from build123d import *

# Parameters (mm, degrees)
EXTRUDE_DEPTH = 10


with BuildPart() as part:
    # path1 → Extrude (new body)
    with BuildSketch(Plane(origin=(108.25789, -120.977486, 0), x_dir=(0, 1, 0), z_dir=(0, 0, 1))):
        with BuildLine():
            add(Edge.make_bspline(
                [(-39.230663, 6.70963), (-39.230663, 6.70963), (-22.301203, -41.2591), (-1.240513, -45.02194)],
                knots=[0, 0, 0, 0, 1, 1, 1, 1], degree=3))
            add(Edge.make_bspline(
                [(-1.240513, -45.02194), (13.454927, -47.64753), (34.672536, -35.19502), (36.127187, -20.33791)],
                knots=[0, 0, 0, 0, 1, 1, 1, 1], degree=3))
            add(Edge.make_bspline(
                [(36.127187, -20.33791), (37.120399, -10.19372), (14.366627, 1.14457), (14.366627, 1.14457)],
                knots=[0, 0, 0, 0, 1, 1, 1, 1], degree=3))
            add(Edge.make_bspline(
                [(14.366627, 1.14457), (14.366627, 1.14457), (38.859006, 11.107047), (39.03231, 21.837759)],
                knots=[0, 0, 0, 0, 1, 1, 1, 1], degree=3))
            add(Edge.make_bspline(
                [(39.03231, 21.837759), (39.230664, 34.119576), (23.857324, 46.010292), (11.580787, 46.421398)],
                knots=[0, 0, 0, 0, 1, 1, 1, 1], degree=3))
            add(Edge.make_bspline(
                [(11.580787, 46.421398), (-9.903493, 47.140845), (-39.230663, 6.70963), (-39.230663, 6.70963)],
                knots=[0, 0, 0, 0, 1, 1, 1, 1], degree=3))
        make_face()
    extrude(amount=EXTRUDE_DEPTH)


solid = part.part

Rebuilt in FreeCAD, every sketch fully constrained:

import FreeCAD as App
import Part
import Sketcher

V = App.Vector

doc = App.newDocument("Part")
params = doc.addObject("Spreadsheet::Sheet", "Params")
for row, (alias, value) in enumerate([
    ("pad1_length", "10 mm"),
], start=1):
    params.set(f"A{row}", alias)
    params.set(f"B{row}", "=" + value)
    params.setAlias(f"B{row}", alias)

body = doc.addObject("PartDesign::Body", "Body")

# Sketch on XY plane
sketch1 = doc.addObject("Sketcher::SketchObject", "Sketch")
body.addObject(sketch1)
sketch1.AttachmentSupport = (doc.XY_Plane, [""])
sketch1.MapMode = "FlatFace"
sketch1.addGeometry(Part.BSplineCurve([V(101.54826, -160.208149, 0), V(101.54826, -160.208149, 0), V(149.51699, -143.278689, 0), V(153.27983, -122.217999, 0)], [4, 4], [0, 1], False, 3, [1, 1, 1, 1], False), False)
sketch1.addGeometry(Part.BSplineCurve([V(153.27983, -122.217999, 0), V(155.90542, -107.522559, 0), V(143.45291, -86.30495, 0), V(128.5958, -84.850299, 0)], [4, 4], [0, 1], False, 3, [1, 1, 1, 1], False), False)
sketch1.addGeometry(Part.BSplineCurve([V(128.5958, -84.850299, 0), V(118.45161, -83.857087, 0), V(107.11332, -106.610859, 0), V(107.11332, -106.610859, 0)], [4, 4], [0, 1], False, 3, [1, 1, 1, 1], False), False)
sketch1.addGeometry(Part.BSplineCurve([V(107.11332, -106.610859, 0), V(107.11332, -106.610859, 0), V(97.150843, -82.11848, 0), V(86.420131, -81.945176, 0)], [4, 4], [0, 1], False, 3, [1, 1, 1, 1], False), False)
sketch1.addGeometry(Part.BSplineCurve([V(86.420131, -81.945176, 0), V(74.138314, -81.746822, 0), V(62.247598, -97.120162, 0), V(61.836492, -109.396699, 0)], [4, 4], [0, 1], False, 3, [1, 1, 1, 1], False), False)
sketch1.addGeometry(Part.BSplineCurve([V(61.836492, -109.396699, 0), V(61.117045, -130.880979, 0), V(101.54826, -160.208149, 0), V(101.54826, -160.208149, 0)], [4, 4], [0, 1], False, 3, [1, 1, 1, 1], False), False)
sketch1.addConstraint(Sketcher.Constraint("Block", 0))
sketch1.addConstraint(Sketcher.Constraint("Block", 1))
sketch1.addConstraint(Sketcher.Constraint("Block", 2))
sketch1.addConstraint(Sketcher.Constraint("Block", 3))
sketch1.addConstraint(Sketcher.Constraint("Block", 4))
sketch1.addConstraint(Sketcher.Constraint("Block", 5))
pad1 = doc.addObject("PartDesign::Pad", "Pad")
body.addObject(pad1)
pad1.Profile = sketch1
pad1.setExpression("Length", "Params.pad1_length")

doc.recompute()
